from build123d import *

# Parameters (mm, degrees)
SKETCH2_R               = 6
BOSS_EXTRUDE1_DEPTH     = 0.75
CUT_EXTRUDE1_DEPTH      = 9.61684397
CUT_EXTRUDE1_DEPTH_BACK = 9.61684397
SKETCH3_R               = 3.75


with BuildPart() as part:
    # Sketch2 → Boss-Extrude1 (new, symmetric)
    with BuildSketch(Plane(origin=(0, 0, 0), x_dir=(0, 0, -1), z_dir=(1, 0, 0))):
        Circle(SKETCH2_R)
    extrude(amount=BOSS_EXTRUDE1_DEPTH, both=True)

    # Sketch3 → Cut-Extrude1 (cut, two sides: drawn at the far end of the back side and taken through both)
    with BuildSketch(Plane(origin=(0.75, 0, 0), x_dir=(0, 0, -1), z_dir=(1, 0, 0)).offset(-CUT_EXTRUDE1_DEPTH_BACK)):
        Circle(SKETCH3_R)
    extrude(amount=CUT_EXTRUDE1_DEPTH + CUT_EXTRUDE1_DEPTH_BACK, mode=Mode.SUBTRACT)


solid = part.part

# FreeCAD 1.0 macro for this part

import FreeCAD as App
import Part
import Sketcher

doc = App.newDocument("Part")
body = doc.addObject("PartDesign::Body", "Body")

sketch1 = body.newObject("Sketcher::SketchObject", "Sketch")
sketch1.AttachmentSupport = (doc.getObject("YZ_Plane"), [""])
sketch1.MapMode = "FlatFace"
sketch1.addGeometry(Part.Circle(App.Vector(0, 0, 0), App.Vector(0, 0, 1), 6), False)
sketch1.addConstraint(Sketcher.Constraint("Coincident", 0, 3, -1, 1))
sketch1.addConstraint(Sketcher.Constraint("Diameter", 0, 12.0))
pad1 = body.newObject("PartDesign::Pad", "Pad")
pad1.Profile = sketch1
pad1.Length = 1.5
pad1.Midplane = True

sketch2 = body.newObject("Sketcher::SketchObject", "Sketch001")
sketch2.AttachmentSupport = (doc.getObject("YZ_Plane"), [""])
sketch2.MapMode = "FlatFace"
sketch2.AttachmentOffset = App.Placement(App.Vector(0, 0, 0.75), App.Rotation())
sketch2.addGeometry(Part.Circle(App.Vector(0, 0, 0), App.Vector(0, 0, 1), 3.8), False)
sketch2.addConstraint(Sketcher.Constraint("Coincident", 0, 3, -1, 1))
sketch2.addConstraint(Sketcher.Constraint("Diameter", 0, 7.5))
pocket1 = body.newObject("PartDesign::Pocket", "Pocket")
pocket1.Profile = sketch2
pocket1.Type = "ThroughAll"
pocket1.Midplane = True

doc.recompute()
